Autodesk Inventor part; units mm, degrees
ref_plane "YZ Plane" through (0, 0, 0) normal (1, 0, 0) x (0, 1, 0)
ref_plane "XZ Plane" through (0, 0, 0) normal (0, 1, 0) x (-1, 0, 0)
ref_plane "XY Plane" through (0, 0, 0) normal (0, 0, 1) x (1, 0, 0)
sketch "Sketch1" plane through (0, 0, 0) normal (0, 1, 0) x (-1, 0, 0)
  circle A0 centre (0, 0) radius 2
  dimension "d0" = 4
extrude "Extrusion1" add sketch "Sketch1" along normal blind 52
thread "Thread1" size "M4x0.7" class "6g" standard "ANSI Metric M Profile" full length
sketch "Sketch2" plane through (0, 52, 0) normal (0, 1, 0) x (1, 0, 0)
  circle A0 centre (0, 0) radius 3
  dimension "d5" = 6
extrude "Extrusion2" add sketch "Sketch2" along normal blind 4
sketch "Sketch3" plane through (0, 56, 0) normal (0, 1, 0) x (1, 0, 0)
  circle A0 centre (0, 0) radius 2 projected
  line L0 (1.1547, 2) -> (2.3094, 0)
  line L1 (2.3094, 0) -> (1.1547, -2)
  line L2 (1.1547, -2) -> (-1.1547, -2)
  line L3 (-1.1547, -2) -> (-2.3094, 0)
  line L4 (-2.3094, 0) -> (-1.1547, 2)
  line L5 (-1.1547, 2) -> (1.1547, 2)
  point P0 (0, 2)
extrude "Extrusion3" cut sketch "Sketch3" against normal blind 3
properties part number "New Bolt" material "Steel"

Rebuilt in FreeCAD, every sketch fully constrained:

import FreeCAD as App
import Part
import Sketcher
from FreeCAD import Vector
Q = App.Units.Quantity

doc = App.newDocument("Part")
params = doc.addObject("Spreadsheet::Sheet", "Params")
for row, (alias, value) in enumerate([
    ("sketch1_diameter", "4 mm"),
    ("pad1_length", "52 mm"),
    ("sketch2_diameter", "6 mm"),
    ("pad2_length", "4 mm"),
    ("pocket1_length", "3 mm"),
], start=1):
    params.set(f"A{row}", alias)
    params.set(f"B{row}", "=" + value)
    params.setAlias(f"B{row}", alias)

body = doc.addObject("PartDesign::Body", "Body")

# Sketch on XZ plane
sketch1 = body.newObject("Sketcher::SketchObject", "Sketch")
sketch1.AttachmentSupport = (doc.getObject("XZ_Plane"), [""])
sketch1.MapMode = "FlatFace"
sketch1.addGeometry(Part.Circle(Vector(0, 0, 0), Vector(0, 0, 1), 2), False)
sketch1.addConstraint(Sketcher.Constraint("Coincident", 0, 3, -1, 1))
sketch1.addConstraint(Sketcher.Constraint("Diameter", 0, 4.0))
sketch1.setExpression("Constraints[1]", "Params.sketch1_diameter")
pad1 = body.newObject("PartDesign::Pad", "Pad")
pad1.Profile = sketch1
pad1.setExpression("Length", "Params.pad1_length")
pad1.Reversed = True

# Sketch on XZ plane
sketch2 = body.newObject("Sketcher::SketchObject", "Sketch001")
sketch2.AttachmentSupport = (doc.getObject("XZ_Plane"), [""])
sketch2.MapMode = "FlatFace"
sketch2.AttachmentOffset = App.Placement(Vector(0, 0, -52), App.Rotation())
sketch2.addGeometry(Part.Circle(Vector(0, 0, 0), Vector(0, 0, 1), 3), False)
sketch2.addConstraint(Sketcher.Constraint("Coincident", 0, 3, -1, 1))
sketch2.addConstraint(Sketcher.Constraint("Diameter", 0, 6.0))
sketch2.setExpression("Constraints[1]", "Params.sketch2_diameter")
pad2 = body.newObject("PartDesign::Pad", "Pad001")
pad2.Profile = sketch2
pad2.setExpression("Length", "Params.pad2_length")
pad2.Reversed = True

# Sketch on XZ plane
sketch3 = body.newObject("Sketcher::SketchObject", "Sketch002")
sketch3.AttachmentSupport = (doc.getObject("XZ_Plane"), [""])
sketch3.MapMode = "FlatFace"
sketch3.AttachmentOffset = App.Placement(Vector(0, 0, -56), App.Rotation())
sketch3.addGeometry(Part.LineSegment(Vector(2.3, 0, 0), Vector(1.2, -2, 0)), False)
sketch3.addGeometry(Part.LineSegment(Vector(1.2, -2, 0), Vector(-1.2, -2, 0)), False)
sketch3.addGeometry(Part.LineSegment(Vector(-1.2, -2, 0), Vector(-2.3, 0, 0)), False)
sketch3.addGeometry(Part.LineSegment(Vector(-2.3, 0, 0), Vector(-1.2, 2, 0)), False)
sketch3.addGeometry(Part.LineSegment(Vector(-1.2, 2, 0), Vector(1.2, 2, 0)), False)
sketch3.addGeometry(Part.LineSegment(Vector(1.2, 2, 0), Vector(2.3, 0, 0)), False)
sketch3.addConstraint(Sketcher.Constraint("Coincident", 0, 2, 1, 1))
sketch3.addConstraint(Sketcher.Constraint("Coincident", 1, 2, 2, 1))
sketch3.addConstraint(Sketcher.Constraint("Coincident", 2, 2, 3, 1))
sketch3.addConstraint(Sketcher.Constraint("Coincident", 3, 2, 4, 1))
sketch3.addConstraint(Sketcher.Constraint("Coincident", 4, 2, 5, 1))
sketch3.addConstraint(Sketcher.Constraint("Coincident", 5, 2, 0, 1))
sketch3.addConstraint(Sketcher.Constraint("Horizontal", 1))
sketch3.addConstraint(Sketcher.Constraint("Horizontal", 4))
sketch3.addConstraint(Sketcher.Constraint("Symmetric", 0, 2, 3, 2, -1, 1))
sketch3.addConstraint(Sketcher.Constraint("Symmetric", 2, 2, 5, 2, -1, 1))
sketch3.addConstraint(Sketcher.Constraint("PointOnObject", 2, 2, -1))
sketch3.addConstraint(Sketcher.Constraint("Parallel", 2, 5))
sketch3.addConstraint(Sketcher.Constraint("Vertical", 1, 2, 3, 2))
sketch3.addConstraint(Sketcher.Constraint("Angle", 0, Q("-120 deg")))
sketch3.addConstraint(Sketcher.Constraint("DistanceY", 0, 2, -1, 1, 2.0))
sketch3.addConstraint(Sketcher.Constraint("DistanceX", 1, 2, 1, 1, 2.3094))
pocket1 = body.newObject("PartDesign::Pocket", "Pocket")
pocket1.Profile = sketch3
pocket1.setExpression("Length", "Params.pocket1_length")
pocket1.Reversed = True

doc.recompute()
